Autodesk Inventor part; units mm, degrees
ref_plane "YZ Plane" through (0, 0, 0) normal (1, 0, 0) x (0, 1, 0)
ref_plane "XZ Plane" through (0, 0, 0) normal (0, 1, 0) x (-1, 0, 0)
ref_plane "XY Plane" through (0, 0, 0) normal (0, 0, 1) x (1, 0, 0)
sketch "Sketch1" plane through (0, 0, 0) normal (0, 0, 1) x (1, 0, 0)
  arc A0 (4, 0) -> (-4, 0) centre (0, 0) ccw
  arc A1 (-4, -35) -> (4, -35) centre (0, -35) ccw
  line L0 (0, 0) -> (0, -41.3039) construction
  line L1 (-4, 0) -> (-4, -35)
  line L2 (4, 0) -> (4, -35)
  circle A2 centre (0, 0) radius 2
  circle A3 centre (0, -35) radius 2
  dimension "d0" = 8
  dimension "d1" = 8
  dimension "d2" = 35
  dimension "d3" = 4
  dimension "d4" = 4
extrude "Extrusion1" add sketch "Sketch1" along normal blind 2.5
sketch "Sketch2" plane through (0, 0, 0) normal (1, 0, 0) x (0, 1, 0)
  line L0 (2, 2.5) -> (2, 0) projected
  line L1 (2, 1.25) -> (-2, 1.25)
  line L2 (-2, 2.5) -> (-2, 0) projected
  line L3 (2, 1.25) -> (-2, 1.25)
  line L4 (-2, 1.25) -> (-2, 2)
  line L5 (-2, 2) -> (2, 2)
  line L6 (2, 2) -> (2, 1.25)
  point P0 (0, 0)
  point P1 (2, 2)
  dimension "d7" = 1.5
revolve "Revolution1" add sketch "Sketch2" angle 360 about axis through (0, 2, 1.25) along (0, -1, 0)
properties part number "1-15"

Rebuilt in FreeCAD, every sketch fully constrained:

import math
import FreeCAD as App
import Part
import Sketcher
from FreeCAD import Vector
Q = App.Units.Quantity


def add_polygon(sketch, points):
    """Adds a closed chain of lines whose ends are joined by coincident constraints."""
    first, n = sketch.GeometryCount, len(points)
    for a, b in zip(points, points[1:] + points[:1]):
        sketch.addGeometry(Part.LineSegment(App.Vector(*a, 0), App.Vector(*b, 0)), False)
    for i in range(n):
        sketch.addConstraint(Sketcher.Constraint("Coincident", first + i, 2, first + (i + 1) % n, 1))

doc = App.newDocument("Part")
body = doc.addObject("PartDesign::Body", "Body")

# Sketch on XY plane
sketch1 = doc.addObject("Sketcher::SketchObject", "Sketch")
body.addObject(sketch1)
sketch1.AttachmentSupport = (doc.XY_Plane, [""])
sketch1.MapMode = "FlatFace"
sketch1.addGeometry([
    Part.LineSegment(Vector(4, -35, 0), Vector(4, 0, 0)),  # 0
    Part.ArcOfCircle(Part.Circle(Vector(0, 0, 0), Vector(0, 0, 1), 4), math.radians(0), math.radians(180)),  # 1
    Part.LineSegment(Vector(-4, 0, 0), Vector(-4, -35, 0)),  # 2
    Part.ArcOfCircle(Part.Circle(Vector(0, -35, 0), Vector(0, 0, 1), 4), math.radians(180), math.radians(360)),  # 3
    Part.Circle(Vector(0, -35, 0), Vector(0, 0, 1), 2),  # 4
    Part.Circle(Vector(0, 0, 0), Vector(0, 0, 1), 2),  # 5
], False)
sketch1.addConstraint([
    Sketcher.Constraint("Tangent", 0, 2, 1, 1),
    Sketcher.Constraint("Tangent", 1, 2, 2, 1),
    Sketcher.Constraint("Tangent", 2, 2, 3, 1),
    Sketcher.Constraint("Tangent", 3, 2, 0, 1),
    Sketcher.Constraint("Vertical", 0),
    Sketcher.Constraint("Vertical", 2),
    Sketcher.Constraint("Coincident", 1, 3, -1, 1),
    Sketcher.Constraint("Coincident", 5, 3, -1, 1),
    Sketcher.Constraint("Coincident", 4, 3, 3, 3),
    Sketcher.Constraint("Equal", 4, 5),
    Sketcher.Constraint("Diameter", 4, Q("4 mm")),
    Sketcher.Constraint("Radius", 1, Q("4 mm")),
    Sketcher.Constraint("DistanceY", 0, 1, 0, 2, Q("35 mm")),
])
pad1 = doc.addObject("PartDesign::Pad", "Pad")
body.addObject(pad1)
pad1.Profile = sketch1
pad1.Length = 2.5

# Sketch on YZ plane
sketch2 = doc.addObject("Sketcher::SketchObject", "Sketch001")
body.addObject(sketch2)
sketch2.AttachmentSupport = (doc.YZ_Plane, [""])
sketch2.MapMode = "FlatFace"
add_polygon(sketch2, [(2, 1.2), (2, 2), (-2, 2), (-2, 1.2)])  # lines 0-3
sketch2.addGeometry(Part.LineSegment(Vector(2, 1.2, 0), Vector(-2, 1.2, 0)), True)  # axis
sketch2.addConstraint([
    Sketcher.Constraint("Vertical", 0),
    Sketcher.Constraint("Horizontal", 1),
    Sketcher.Constraint("Vertical", 2),
    Sketcher.Constraint("Horizontal", 3),
    Sketcher.Constraint("Horizontal", 4),
    Sketcher.Constraint("Coincident", 4, 1, 3, 2),
    Sketcher.Constraint("Vertical", 1, 2, 4, 2),
    Sketcher.Constraint("DistanceX", 1, 2, 1, 1, Q("4 mm")),
    Sketcher.Constraint("DistanceX", -1, 1, 0, 2, Q("2 mm")),
    Sketcher.Constraint("DistanceY", -1, 1, 0, 2, Q("2 mm")),
    Sketcher.Constraint("DistanceY", 0, 1, 0, 2, Q("0.75 mm")),
])
revolution = doc.addObject("PartDesign::Revolution", "Revolution")
body.addObject(revolution)
revolution.Profile = sketch2
revolution.ReferenceAxis = (sketch2, ["Axis0"])
revolution.Angle = 360

doc.recompute()
